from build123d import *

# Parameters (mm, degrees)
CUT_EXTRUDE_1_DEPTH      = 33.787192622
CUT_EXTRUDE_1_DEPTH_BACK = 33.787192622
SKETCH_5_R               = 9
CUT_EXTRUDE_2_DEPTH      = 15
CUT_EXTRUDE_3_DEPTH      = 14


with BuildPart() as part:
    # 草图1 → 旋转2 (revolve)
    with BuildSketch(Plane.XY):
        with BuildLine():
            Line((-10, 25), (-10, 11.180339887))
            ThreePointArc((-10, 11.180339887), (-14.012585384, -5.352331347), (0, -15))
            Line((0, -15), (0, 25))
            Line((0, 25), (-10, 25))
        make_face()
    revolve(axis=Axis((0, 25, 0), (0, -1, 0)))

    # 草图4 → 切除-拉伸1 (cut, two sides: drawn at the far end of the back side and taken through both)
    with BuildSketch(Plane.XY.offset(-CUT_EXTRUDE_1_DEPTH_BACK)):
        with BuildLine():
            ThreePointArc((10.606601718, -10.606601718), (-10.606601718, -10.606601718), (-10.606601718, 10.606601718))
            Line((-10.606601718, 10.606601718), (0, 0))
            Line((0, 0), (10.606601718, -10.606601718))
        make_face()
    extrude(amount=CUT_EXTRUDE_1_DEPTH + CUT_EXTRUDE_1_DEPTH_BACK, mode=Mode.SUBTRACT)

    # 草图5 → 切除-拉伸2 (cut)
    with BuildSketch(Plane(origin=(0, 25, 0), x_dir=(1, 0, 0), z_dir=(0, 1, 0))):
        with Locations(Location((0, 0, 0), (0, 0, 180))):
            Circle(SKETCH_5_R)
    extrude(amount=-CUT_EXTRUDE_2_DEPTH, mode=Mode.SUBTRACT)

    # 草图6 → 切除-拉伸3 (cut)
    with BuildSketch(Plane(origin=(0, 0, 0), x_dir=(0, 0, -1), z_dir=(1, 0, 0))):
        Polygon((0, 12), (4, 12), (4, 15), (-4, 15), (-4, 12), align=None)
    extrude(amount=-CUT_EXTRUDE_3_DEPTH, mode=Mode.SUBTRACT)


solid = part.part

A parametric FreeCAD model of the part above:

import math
import FreeCAD as App
import Part
import Sketcher
Q = App.Units.Quantity

doc = App.newDocument("Part")
body = doc.addObject("PartDesign::Body", "Body")

# Sketch on XY plane
sketch1 = body.newObject("Sketcher::SketchObject", "Sketch")
sketch1.AttachmentSupport = (doc.getObject("XY_Plane"), [""])
sketch1.MapMode = "FlatFace"
sketch1.addGeometry([
    Part.LineSegment(App.Vector(-10, 25, 0), App.Vector(-10, 11, 0)),
    Part.ArcOfCircle(Part.Circle(App.Vector(0, 0, 0), App.Vector(0, 0, 1), 15), math.radians(132), math.radians(270)),
    Part.LineSegment(App.Vector(0, -15, 0), App.Vector(0, 25, 0)),
    Part.LineSegment(App.Vector(0, 25, 0), App.Vector(-10, 25, 0)),
], False)
sketch1.addConstraint([
    Sketcher.Constraint("Coincident", 0, 2, 1, 1),
    Sketcher.Constraint("Coincident", 1, 2, 2, 1),
    Sketcher.Constraint("Coincident", 2, 2, 3, 1),
    Sketcher.Constraint("Coincident", 3, 2, 0, 1),
    Sketcher.Constraint("Vertical", 0),
    Sketcher.Constraint("Vertical", 2),
    Sketcher.Constraint("Horizontal", 3),
    Sketcher.Constraint("Coincident", 1, 3, -1, 1),
    Sketcher.Constraint("PointOnObject", 1, 2, -2),
    Sketcher.Constraint("Radius", 1, 15.0),
    Sketcher.Constraint("DistanceX", 3, 2, 3, 1, 10.0),
    Sketcher.Constraint("DistanceY", 2, 1, 2, 2, 40.0),
])
revolution = body.newObject("PartDesign::Revolution", "Revolution")
revolution.Profile = sketch1
revolution.ReferenceAxis = (sketch1, ["V_Axis"])
revolution.Angle = 360

# Sketch on XY plane
sketch2 = body.newObject("Sketcher::SketchObject", "Sketch001")
sketch2.AttachmentSupport = (doc.getObject("XY_Plane"), [""])
sketch2.MapMode = "FlatFace"
sketch2.addGeometry([
    Part.ArcOfCircle(Part.Circle(App.Vector(0, 0, 0), App.Vector(0, 0, 1), 15), math.radians(135), math.radians(315)),
    Part.LineSegment(App.Vector(11, -11, 0), App.Vector(-11, 11, 0)),
], False)
sketch2.addConstraint([
    Sketcher.Constraint("Coincident", 0, 1, 1, 2),
    Sketcher.Constraint("Coincident", 1, 1, 0, 2),
    Sketcher.Constraint("Coincident", 0, 3, -1, 1),
    Sketcher.Constraint("Radius", 0, 15.0),
    Sketcher.Constraint("Angle", 1, Q("135 deg")),
    Sketcher.Constraint("DistanceX", 0, 1, -1, 1, 10.606602),
])
pocket1 = body.newObject("PartDesign::Pocket", "Pocket")
pocket1.Profile = sketch2
pocket1.Type = "ThroughAll"
pocket1.Midplane = True

# Sketch on XZ plane
sketch3 = body.newObject("Sketcher::SketchObject", "Sketch002")
sketch3.AttachmentSupport = (doc.getObject("XZ_Plane"), [""])
sketch3.MapMode = "FlatFace"
sketch3.AttachmentOffset = App.Placement(App.Vector(0, 0, -25), App.Rotation())
sketch3.addGeometry(Part.Circle(App.Vector(0, 0, 0), App.Vector(0, 0, 1), 9), False)
sketch3.addConstraint([
    Sketcher.Constraint("Coincident", 0, 3, -1, 1),
    Sketcher.Constraint("Diameter", 0, 18.0),
])
pocket2 = body.newObject("PartDesign::Pocket", "Pocket001")
pocket2.Profile = sketch3
pocket2.Length = 15
pocket2.Reversed = True

# Sketch on YZ plane
sketch4 = body.newObject("Sketcher::SketchObject", "Sketch003")
sketch4.AttachmentSupport = (doc.getObject("YZ_Plane"), [""])
sketch4.MapMode = "FlatFace"
sketch4.addGeometry([
    Part.LineSegment(App.Vector(12, -4, 0), App.Vector(15, -4, 0)),
    Part.LineSegment(App.Vector(15, -4, 0), App.Vector(15, 4, 0)),
    Part.LineSegment(App.Vector(15, 4, 0), App.Vector(12, 4, 0)),
    Part.LineSegment(App.Vector(12, 4, 0), App.Vector(12, -4, 0)),
], False)
sketch4.addConstraint([
    Sketcher.Constraint("Coincident", 0, 2, 1, 1),
    Sketcher.Constraint("Coincident", 1, 2, 2, 1),
    Sketcher.Constraint("Coincident", 2, 2, 3, 1),
    Sketcher.Constraint("Coincident", 3, 2, 0, 1),
    Sketcher.Constraint("Horizontal", 0),
    Sketcher.Constraint("Vertical", 1),
    Sketcher.Constraint("Horizontal", 2),
    Sketcher.Constraint("Vertical", 3),
    Sketcher.Constraint("DistanceX", 0, 1, 0, 2, 3.0),
    Sketcher.Constraint("DistanceY", 1, 1, 1, 2, 8.0),
    Sketcher.Constraint("DistanceX", -1, 1, 0, 2, 15.0),
    Sketcher.Constraint("DistanceY", 0, 2, -1, 1, 4.0),
])
pocket3 = body.newObject("PartDesign::Pocket", "Pocket002")
pocket3.Profile = sketch4
pocket3.Length = 14

doc.recompute()
